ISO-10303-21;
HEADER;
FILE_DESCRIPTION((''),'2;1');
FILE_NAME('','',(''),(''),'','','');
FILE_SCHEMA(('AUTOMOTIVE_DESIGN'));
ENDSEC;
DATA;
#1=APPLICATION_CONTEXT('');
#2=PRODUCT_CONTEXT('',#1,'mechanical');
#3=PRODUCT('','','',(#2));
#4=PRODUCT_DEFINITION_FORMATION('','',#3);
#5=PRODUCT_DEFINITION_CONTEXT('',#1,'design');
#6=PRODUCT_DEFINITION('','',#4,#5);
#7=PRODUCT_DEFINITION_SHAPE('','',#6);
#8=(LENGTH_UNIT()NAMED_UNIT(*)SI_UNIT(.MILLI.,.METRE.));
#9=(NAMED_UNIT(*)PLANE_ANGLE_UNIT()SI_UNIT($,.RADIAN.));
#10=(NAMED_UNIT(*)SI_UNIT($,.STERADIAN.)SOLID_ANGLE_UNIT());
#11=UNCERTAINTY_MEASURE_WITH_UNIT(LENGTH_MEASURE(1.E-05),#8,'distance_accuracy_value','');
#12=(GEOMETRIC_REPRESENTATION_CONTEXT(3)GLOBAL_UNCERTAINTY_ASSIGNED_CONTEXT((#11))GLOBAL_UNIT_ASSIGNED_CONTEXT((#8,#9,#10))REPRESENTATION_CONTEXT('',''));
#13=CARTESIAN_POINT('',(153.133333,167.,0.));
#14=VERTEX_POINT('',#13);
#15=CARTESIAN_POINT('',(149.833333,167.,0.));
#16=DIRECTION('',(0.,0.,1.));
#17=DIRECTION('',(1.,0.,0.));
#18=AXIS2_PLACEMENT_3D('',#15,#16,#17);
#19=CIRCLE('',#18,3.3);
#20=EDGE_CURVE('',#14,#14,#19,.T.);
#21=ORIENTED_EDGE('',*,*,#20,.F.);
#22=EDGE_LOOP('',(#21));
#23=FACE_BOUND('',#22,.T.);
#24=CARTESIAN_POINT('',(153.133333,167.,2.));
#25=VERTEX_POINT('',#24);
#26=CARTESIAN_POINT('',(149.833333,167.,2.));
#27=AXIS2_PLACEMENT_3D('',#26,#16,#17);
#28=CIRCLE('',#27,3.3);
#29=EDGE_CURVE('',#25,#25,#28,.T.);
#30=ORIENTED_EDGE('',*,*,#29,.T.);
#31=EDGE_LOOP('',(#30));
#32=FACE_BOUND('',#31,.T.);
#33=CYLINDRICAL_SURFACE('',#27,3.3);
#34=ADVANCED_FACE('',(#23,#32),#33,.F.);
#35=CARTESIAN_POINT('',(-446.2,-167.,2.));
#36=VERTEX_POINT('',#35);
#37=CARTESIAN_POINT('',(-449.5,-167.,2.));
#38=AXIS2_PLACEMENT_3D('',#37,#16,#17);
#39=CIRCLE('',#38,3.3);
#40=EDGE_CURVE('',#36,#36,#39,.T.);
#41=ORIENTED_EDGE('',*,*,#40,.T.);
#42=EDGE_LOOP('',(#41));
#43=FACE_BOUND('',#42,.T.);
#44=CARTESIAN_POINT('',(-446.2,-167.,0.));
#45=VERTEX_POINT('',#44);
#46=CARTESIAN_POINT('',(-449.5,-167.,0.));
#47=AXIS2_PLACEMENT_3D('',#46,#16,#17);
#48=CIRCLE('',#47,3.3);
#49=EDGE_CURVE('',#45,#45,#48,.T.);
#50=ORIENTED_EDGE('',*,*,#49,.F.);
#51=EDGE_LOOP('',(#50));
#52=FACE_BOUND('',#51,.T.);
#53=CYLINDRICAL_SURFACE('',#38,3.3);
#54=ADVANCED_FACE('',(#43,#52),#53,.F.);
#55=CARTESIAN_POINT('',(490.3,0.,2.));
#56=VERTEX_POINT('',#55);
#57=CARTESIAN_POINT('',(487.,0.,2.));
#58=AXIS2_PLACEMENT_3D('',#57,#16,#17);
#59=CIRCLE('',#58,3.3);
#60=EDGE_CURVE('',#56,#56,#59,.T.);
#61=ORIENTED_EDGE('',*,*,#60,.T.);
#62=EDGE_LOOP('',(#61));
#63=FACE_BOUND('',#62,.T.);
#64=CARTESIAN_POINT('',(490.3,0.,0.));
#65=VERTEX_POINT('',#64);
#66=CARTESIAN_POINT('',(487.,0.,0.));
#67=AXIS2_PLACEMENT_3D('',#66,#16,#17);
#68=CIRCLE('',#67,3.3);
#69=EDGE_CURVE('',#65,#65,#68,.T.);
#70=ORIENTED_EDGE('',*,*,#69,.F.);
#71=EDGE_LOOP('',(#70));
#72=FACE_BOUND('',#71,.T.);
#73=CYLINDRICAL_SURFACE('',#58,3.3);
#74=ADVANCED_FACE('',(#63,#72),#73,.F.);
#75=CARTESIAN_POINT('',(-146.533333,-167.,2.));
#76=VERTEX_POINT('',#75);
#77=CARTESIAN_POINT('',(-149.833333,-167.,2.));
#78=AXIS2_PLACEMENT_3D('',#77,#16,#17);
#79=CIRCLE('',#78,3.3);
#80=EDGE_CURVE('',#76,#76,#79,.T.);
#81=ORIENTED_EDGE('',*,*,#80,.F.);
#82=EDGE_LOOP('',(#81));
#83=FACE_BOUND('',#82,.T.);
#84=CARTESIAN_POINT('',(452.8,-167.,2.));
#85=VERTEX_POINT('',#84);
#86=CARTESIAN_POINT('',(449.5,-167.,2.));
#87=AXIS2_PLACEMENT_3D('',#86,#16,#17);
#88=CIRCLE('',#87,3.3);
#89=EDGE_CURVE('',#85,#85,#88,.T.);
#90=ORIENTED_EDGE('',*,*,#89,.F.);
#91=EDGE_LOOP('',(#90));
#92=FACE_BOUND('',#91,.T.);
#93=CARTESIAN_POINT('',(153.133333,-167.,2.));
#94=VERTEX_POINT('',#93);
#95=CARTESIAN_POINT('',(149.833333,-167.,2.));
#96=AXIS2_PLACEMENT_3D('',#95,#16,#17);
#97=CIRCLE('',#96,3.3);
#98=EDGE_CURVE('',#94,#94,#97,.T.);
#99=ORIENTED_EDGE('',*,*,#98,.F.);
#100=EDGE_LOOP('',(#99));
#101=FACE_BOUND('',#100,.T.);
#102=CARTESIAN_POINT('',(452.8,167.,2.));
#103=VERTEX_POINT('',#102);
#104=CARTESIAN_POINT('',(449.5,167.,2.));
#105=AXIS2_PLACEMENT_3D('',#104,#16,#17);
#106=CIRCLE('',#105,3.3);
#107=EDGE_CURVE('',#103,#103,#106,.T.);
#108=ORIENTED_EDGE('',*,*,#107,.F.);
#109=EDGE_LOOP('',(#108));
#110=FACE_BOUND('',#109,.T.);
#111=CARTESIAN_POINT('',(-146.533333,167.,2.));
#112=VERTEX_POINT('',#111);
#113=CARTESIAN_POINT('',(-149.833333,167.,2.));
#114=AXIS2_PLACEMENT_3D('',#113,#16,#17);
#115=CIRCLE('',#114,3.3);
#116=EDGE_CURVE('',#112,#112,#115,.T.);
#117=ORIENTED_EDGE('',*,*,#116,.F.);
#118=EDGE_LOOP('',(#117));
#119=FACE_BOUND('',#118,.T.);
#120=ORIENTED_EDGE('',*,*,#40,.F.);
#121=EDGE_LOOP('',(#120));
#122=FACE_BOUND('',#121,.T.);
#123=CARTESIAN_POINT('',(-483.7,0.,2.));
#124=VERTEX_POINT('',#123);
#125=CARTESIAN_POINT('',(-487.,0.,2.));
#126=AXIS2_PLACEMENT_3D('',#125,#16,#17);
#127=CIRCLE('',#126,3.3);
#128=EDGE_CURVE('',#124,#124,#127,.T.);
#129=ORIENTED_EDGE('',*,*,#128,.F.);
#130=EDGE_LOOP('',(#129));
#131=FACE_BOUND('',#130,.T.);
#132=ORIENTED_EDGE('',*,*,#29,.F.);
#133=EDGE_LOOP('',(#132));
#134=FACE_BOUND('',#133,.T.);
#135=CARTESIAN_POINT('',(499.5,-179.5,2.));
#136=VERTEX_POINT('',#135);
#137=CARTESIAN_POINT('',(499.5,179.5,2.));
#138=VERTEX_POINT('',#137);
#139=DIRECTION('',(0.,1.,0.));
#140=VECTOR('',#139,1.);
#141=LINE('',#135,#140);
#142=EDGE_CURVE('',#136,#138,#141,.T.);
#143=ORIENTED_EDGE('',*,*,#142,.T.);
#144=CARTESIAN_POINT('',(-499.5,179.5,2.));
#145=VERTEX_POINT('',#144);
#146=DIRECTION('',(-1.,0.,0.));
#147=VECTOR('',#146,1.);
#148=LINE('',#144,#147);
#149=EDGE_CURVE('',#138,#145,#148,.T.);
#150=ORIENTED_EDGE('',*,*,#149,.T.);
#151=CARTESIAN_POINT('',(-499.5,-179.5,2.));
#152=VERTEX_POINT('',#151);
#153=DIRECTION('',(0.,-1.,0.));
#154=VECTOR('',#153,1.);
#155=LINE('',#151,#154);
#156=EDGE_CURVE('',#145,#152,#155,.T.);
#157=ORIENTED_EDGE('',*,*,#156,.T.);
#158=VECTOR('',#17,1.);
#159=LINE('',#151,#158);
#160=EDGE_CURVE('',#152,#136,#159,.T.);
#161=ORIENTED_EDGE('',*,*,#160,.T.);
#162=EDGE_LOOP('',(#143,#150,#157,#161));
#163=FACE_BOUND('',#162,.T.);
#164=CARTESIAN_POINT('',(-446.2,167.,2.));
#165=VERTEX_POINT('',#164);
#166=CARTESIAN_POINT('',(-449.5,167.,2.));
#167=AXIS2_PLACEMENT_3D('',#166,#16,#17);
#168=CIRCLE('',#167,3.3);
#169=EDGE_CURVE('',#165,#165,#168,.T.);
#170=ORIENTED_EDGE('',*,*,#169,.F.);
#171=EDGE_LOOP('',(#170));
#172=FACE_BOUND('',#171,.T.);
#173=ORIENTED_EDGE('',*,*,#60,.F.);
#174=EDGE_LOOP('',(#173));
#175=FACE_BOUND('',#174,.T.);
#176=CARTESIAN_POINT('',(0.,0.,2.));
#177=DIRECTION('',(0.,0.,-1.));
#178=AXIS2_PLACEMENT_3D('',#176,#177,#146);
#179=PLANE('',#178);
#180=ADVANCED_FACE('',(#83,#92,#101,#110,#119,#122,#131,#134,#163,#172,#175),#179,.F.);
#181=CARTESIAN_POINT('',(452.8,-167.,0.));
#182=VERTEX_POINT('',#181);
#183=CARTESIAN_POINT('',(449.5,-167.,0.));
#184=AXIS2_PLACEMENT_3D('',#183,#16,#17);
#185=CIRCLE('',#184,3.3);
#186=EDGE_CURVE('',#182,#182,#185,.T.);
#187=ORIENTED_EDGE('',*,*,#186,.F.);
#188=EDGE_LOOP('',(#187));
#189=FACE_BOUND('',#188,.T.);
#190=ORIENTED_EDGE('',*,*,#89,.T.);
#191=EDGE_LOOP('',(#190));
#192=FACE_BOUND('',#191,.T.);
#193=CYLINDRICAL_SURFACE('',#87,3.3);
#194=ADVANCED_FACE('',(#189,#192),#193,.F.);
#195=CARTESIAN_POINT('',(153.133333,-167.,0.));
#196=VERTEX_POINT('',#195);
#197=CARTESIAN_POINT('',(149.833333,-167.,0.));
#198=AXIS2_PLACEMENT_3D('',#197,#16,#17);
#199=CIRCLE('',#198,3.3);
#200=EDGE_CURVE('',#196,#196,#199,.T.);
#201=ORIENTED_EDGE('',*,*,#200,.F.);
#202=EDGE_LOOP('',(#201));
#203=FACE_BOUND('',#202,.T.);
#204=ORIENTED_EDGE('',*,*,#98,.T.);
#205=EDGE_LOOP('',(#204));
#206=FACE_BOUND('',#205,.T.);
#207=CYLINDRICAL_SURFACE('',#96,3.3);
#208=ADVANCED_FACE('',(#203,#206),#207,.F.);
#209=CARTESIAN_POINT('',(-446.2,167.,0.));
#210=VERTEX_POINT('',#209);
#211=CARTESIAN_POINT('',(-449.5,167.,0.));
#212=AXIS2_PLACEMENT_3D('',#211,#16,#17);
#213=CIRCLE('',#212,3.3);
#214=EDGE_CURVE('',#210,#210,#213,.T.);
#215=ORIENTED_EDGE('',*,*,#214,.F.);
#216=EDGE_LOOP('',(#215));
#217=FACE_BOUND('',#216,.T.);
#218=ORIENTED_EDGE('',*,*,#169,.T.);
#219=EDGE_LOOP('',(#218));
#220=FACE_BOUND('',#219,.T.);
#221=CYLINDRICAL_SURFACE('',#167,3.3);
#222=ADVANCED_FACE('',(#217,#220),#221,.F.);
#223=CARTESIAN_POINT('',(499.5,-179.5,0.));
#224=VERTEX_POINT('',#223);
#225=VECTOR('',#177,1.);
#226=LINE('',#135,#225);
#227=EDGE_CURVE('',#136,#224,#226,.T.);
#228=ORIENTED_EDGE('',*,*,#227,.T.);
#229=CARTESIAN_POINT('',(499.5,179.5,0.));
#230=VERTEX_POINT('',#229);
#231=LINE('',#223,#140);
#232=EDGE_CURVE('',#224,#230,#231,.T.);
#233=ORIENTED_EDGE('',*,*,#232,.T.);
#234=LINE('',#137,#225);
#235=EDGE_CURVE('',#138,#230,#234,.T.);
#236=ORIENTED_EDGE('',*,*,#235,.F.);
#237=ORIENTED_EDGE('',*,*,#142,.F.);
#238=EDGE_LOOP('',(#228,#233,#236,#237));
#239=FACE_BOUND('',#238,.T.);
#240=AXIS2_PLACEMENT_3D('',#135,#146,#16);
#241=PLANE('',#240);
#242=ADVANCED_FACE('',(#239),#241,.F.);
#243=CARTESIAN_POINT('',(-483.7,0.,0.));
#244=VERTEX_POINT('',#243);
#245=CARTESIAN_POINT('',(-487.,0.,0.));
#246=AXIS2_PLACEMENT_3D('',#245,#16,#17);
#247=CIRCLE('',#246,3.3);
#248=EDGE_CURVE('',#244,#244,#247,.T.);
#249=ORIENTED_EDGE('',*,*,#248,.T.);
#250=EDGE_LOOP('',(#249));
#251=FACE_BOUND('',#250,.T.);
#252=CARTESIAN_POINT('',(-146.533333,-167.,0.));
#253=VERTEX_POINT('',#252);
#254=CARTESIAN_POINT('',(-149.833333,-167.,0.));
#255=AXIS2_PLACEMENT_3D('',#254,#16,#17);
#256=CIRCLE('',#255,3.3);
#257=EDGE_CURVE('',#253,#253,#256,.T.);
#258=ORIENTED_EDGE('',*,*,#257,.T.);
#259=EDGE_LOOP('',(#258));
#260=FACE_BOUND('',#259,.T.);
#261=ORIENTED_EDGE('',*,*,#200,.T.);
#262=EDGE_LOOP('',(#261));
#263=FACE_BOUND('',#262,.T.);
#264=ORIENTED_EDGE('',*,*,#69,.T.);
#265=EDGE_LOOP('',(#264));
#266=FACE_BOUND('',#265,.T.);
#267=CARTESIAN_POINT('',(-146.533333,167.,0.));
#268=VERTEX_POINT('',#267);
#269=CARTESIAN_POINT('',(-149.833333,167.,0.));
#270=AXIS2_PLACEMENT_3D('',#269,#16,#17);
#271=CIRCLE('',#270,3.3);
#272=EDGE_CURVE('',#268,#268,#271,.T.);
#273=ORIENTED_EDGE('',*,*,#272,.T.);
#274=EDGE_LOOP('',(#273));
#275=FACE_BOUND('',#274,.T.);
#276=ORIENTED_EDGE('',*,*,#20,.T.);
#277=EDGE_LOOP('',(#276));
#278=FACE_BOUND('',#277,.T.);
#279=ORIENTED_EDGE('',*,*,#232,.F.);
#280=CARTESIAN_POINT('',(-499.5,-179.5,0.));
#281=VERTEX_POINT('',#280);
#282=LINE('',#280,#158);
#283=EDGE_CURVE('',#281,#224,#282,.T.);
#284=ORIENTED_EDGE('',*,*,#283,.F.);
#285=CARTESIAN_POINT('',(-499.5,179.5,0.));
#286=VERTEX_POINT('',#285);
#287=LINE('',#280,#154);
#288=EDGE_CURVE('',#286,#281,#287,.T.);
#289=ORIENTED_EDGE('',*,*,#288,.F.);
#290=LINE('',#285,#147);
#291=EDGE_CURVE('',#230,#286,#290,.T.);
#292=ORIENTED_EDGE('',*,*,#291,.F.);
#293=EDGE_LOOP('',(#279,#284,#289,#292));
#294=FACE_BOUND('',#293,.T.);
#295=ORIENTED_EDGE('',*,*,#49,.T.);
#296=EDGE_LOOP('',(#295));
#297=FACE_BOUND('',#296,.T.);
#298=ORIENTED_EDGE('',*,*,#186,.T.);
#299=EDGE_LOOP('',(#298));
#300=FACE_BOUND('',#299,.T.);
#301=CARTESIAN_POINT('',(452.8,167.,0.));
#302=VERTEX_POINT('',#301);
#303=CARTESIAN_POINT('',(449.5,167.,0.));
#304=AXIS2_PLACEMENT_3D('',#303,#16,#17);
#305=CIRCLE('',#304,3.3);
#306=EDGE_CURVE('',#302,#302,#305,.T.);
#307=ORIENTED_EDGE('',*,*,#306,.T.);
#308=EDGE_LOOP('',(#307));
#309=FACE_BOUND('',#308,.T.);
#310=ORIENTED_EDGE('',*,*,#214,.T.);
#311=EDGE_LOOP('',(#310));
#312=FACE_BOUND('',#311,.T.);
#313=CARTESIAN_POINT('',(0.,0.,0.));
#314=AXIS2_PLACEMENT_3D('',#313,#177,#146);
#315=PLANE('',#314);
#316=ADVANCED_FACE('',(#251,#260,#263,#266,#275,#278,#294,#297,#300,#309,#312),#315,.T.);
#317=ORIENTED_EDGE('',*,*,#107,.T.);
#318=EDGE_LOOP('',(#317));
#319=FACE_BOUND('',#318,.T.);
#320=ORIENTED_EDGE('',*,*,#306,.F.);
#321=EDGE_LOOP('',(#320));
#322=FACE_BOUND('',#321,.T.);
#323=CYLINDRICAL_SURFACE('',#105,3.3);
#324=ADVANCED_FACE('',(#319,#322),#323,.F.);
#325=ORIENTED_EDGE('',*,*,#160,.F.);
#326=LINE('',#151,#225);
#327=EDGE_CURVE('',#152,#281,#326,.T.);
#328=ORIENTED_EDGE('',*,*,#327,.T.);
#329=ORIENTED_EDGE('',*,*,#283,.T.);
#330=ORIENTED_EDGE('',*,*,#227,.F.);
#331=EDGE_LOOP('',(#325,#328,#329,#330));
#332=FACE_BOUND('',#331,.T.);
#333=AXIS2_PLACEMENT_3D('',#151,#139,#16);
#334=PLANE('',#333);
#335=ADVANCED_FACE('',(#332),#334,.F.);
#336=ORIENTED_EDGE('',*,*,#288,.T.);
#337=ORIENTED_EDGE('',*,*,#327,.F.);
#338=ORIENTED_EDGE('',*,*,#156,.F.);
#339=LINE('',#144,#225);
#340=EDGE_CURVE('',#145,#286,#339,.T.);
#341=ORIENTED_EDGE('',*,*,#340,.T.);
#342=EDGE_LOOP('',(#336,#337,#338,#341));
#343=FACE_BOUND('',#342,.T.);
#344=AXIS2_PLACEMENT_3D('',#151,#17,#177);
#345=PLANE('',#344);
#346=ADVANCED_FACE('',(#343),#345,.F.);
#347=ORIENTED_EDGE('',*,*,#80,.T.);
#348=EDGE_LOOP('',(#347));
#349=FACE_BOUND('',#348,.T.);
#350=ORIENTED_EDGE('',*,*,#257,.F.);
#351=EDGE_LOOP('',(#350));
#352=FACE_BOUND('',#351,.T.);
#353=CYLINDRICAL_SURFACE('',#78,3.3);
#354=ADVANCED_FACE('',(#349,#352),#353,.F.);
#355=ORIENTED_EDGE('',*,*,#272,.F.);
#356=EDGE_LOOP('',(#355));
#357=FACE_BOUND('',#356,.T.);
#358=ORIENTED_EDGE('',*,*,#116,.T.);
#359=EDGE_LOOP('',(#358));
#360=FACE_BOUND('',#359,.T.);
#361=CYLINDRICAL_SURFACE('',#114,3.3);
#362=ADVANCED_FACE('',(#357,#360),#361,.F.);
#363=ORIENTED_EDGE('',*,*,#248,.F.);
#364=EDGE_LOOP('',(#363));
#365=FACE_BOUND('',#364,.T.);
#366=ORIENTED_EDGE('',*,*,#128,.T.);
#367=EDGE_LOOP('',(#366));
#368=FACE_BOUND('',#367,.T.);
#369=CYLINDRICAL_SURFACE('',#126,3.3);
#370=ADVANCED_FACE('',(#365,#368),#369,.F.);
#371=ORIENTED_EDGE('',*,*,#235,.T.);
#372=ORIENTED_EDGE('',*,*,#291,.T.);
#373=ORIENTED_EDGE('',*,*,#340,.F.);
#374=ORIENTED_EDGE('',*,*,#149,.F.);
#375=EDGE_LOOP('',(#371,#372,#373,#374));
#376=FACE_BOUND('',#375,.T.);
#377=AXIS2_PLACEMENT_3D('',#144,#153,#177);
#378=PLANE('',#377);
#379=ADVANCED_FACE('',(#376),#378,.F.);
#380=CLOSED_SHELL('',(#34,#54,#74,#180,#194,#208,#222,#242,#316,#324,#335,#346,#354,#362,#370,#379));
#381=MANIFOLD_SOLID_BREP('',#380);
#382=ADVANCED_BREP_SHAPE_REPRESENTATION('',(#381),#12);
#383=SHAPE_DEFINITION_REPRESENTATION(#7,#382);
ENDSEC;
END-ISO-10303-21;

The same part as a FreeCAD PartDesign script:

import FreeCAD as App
import Part
import Sketcher


def add_polygon(sketch, points):
    """Adds a closed chain of lines whose ends are joined by coincident constraints."""
    first, n = sketch.GeometryCount, len(points)
    for a, b in zip(points, points[1:] + points[:1]):
        sketch.addGeometry(Part.LineSegment(App.Vector(*a, 0), App.Vector(*b, 0)), False)
    for i in range(n):
        sketch.addConstraint(Sketcher.Constraint("Coincident", first + i, 2, first + (i + 1) % n, 1))

doc = App.newDocument("Part")
body = doc.addObject("PartDesign::Body", "Body")

# Sketch on XY plane
sketch1 = body.newObject("Sketcher::SketchObject", "Sketch")
sketch1.AttachmentSupport = (doc.getObject("XY_Plane"), [""])
sketch1.MapMode = "FlatFace"
add_polygon(sketch1, [(-499.5, 179.5), (-499.5, -179.5), (499.5, -179.5), (499.5, 179.5)])  # lines 0-3
sketch1.addConstraint([
    Sketcher.Constraint("Vertical", 0),
    Sketcher.Constraint("Horizontal", 1),
    Sketcher.Constraint("Vertical", 2),
    Sketcher.Constraint("Horizontal", 3),
    Sketcher.Constraint("Symmetric", 0, 2, 2, 2, -1, 1),
    Sketcher.Constraint("DistanceX", 1, 1, 1, 2, 999.0),
    Sketcher.Constraint("DistanceY", 0, 2, 0, 1, 359.0),
])
pad1 = body.newObject("PartDesign::Pad", "Pad")
pad1.Profile = sketch1
pad1.Length = 2

# Sketch on XY plane
sketch2 = body.newObject("Sketcher::SketchObject", "Sketch001")
sketch2.AttachmentSupport = (doc.getObject("XY_Plane"), [""])
sketch2.MapMode = "FlatFace"
sketch2.AttachmentOffset = App.Placement(App.Vector(0, 0, 2), App.Rotation())
sketch2.addGeometry(Part.Circle(App.Vector(-449.5, 167, 0), App.Vector(0, 0, 1), 3.3), False)
sketch2.addConstraint([
    Sketcher.Constraint("Diameter", 0, 6.6),
    Sketcher.Constraint("DistanceY", -1, 1, 0, 3, 167.0),
    Sketcher.Constraint("DistanceX", 0, 3, -1, 1, 449.5),
])
doc.recompute()
hole = body.newObject("PartDesign::Hole", "Hole")
hole.Profile = sketch2
hole.ThreadType = "None"
hole.Diameter = 6.6
hole.DepthType = "ThroughAll"
doc.recompute()

linearpattern = body.newObject("PartDesign::LinearPattern", "LinearPattern")
linearpattern.Originals = [hole]
linearpattern.Direction = (doc.getObject("X_Axis"), [""])
linearpattern.Mode = "offset"
linearpattern.Offset = 299.666667
linearpattern.Occurrences = 4
body.Tip = linearpattern
doc.recompute()

mirrored = body.newObject("PartDesign::Mirrored", "Mirrored")
mirrored.Originals = [hole]
mirrored.MirrorPlane = (doc.getObject("XZ_Plane"), [""])
body.Tip = mirrored

# Sketch on XY plane
sketch3 = body.newObject("Sketcher::SketchObject", "Sketch002")
sketch3.AttachmentSupport = (doc.getObject("XY_Plane"), [""])
sketch3.MapMode = "FlatFace"
sketch3.AttachmentOffset = App.Placement(App.Vector(0, 0, 2), App.Rotation())
sketch3.addGeometry(Part.Circle(App.Vector(-149.833333, -167, 0), App.Vector(0, 0, 1), 3.3), False)
sketch3.addConstraint([
    Sketcher.Constraint("Diameter", 0, 6.6),
    Sketcher.Constraint("DistanceY", 0, 3, -1, 1, 167.0),
    Sketcher.Constraint("DistanceX", 0, 3, -1, 1, 149.833333),
])
doc.recompute()
hole2 = body.newObject("PartDesign::Hole", "Hole001")
hole2.Profile = sketch3
hole2.ThreadType = "None"
hole2.Diameter = 6.6
hole2.DepthType = "ThroughAll"

# Sketch on XY plane
sketch4 = body.newObject("Sketcher::SketchObject", "Sketch003")
sketch4.AttachmentSupport = (doc.getObject("XY_Plane"), [""])
sketch4.MapMode = "FlatFace"
sketch4.AttachmentOffset = App.Placement(App.Vector(0, 0, 2), App.Rotation())
sketch4.addGeometry(Part.Circle(App.Vector(149.833333, -167, 0), App.Vector(0, 0, 1), 3.3), False)
sketch4.addConstraint([
    Sketcher.Constraint("Diameter", 0, 6.6),
    Sketcher.Constraint("DistanceY", 0, 3, -1, 1, 167.0),
    Sketcher.Constraint("DistanceX", -1, 1, 0, 3, 149.833333),
])
doc.recompute()
hole3 = body.newObject("PartDesign::Hole", "Hole002")
hole3.Profile = sketch4
hole3.ThreadType = "None"
hole3.Diameter = 6.6
hole3.DepthType = "ThroughAll"

# Sketch on XY plane
sketch5 = body.newObject("Sketcher::SketchObject", "Sketch004")
sketch5.AttachmentSupport = (doc.getObject("XY_Plane"), [""])
sketch5.MapMode = "FlatFace"
sketch5.AttachmentOffset = App.Placement(App.Vector(0, 0, 2), App.Rotation())
sketch5.addGeometry(Part.Circle(App.Vector(449.5, -167, 0), App.Vector(0, 0, 1), 3.3), False)
sketch5.addConstraint([
    Sketcher.Constraint("Diameter", 0, 6.6),
    Sketcher.Constraint("DistanceY", 0, 3, -1, 1, 167.0),
    Sketcher.Constraint("DistanceX", -1, 1, 0, 3, 449.5),
])
doc.recompute()
hole4 = body.newObject("PartDesign::Hole", "Hole003")
hole4.Profile = sketch5
hole4.ThreadType = "None"
hole4.Diameter = 6.6
hole4.DepthType = "ThroughAll"

# Sketch on XY plane
sketch6 = body.newObject("Sketcher::SketchObject", "Sketch005")
sketch6.AttachmentSupport = (doc.getObject("XY_Plane"), [""])
sketch6.MapMode = "FlatFace"
sketch6.AttachmentOffset = App.Placement(App.Vector(0, 0, 2), App.Rotation())
sketch6.addGeometry(Part.Circle(App.Vector(-487, 0, 0), App.Vector(0, 0, 1), 3.3), False)
sketch6.addConstraint([
    Sketcher.Constraint("PointOnObject", 0, 3, -1),
    Sketcher.Constraint("Diameter", 0, 6.6),
    Sketcher.Constraint("DistanceX", 0, 3, -1, 1, 487.0),
])
doc.recompute()
hole5 = body.newObject("PartDesign::Hole", "Hole004")
hole5.Profile = sketch6
hole5.ThreadType = "None"
hole5.Diameter = 6.6
hole5.DepthType = "ThroughAll"
doc.recompute()

mirrored2 = body.newObject("PartDesign::Mirrored", "Mirrored001")
mirrored2.Originals = [hole5]
mirrored2.MirrorPlane = (doc.getObject("YZ_Plane"), [""])
body.Tip = mirrored2

doc.recompute()
